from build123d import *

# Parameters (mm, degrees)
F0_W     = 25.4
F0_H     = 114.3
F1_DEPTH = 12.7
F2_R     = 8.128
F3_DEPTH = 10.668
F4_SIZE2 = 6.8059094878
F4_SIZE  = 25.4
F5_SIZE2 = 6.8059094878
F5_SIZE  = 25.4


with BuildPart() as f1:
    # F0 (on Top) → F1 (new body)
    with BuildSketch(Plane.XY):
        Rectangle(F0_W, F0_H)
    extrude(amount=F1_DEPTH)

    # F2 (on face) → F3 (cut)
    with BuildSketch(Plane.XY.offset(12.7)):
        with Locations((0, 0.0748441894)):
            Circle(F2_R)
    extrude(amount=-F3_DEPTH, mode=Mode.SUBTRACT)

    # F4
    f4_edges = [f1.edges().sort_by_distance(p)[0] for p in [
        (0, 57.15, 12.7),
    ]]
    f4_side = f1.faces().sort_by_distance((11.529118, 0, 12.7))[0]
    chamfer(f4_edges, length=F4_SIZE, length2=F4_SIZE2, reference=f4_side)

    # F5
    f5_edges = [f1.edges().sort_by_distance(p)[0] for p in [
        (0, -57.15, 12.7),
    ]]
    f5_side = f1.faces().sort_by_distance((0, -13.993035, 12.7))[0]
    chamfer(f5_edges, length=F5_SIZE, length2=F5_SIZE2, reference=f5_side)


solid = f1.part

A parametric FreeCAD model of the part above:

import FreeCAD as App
import Part
import Sketcher
from FreeCAD import Vector
Q = App.Units.Quantity


def edges_at(feature, points):
    """Names of the edges that pass closest to the given points."""
    edges = feature.Shape.Edges
    near = lambda p: min(range(len(edges)), key=lambda i: edges[i].distToShape(Part.Vertex(*p))[0])
    return sorted({f"Edge{near(p) + 1}" for p in points})

doc = App.newDocument("Part")
body = doc.addObject("PartDesign::Body", "Body")

# Sketch on XY plane
sketch1 = doc.addObject("Sketcher::SketchObject", "Sketch")
body.addObject(sketch1)
sketch1.AttachmentSupport = (doc.XY_Plane, [""])
sketch1.MapMode = "FlatFace"
sketch1.addGeometry([
    Part.LineSegment(Vector(-13, 57, 0), Vector(-13, -57, 0)),
    Part.LineSegment(Vector(-13, -57, 0), Vector(13, -57, 0)),
    Part.LineSegment(Vector(13, -57, 0), Vector(13, 57, 0)),
    Part.LineSegment(Vector(13, 57, 0), Vector(-13, 57, 0)),
], False)
sketch1.addConstraint([
    Sketcher.Constraint("Coincident", 0, 2, 1, 1),
    Sketcher.Constraint("Coincident", 1, 2, 2, 1),
    Sketcher.Constraint("Coincident", 2, 2, 3, 1),
    Sketcher.Constraint("Coincident", 3, 2, 0, 1),
    Sketcher.Constraint("Vertical", 0),
    Sketcher.Constraint("Horizontal", 1),
    Sketcher.Constraint("Vertical", 2),
    Sketcher.Constraint("Horizontal", 3),
    Sketcher.Constraint("Symmetric", 0, 2, 2, 2, -1, 1),
    Sketcher.Constraint("DistanceX", 1, 1, 1, 2, Q("1 in")),
    Sketcher.Constraint("DistanceY", 0, 2, 0, 1, Q("4.5 in")),
])
pad1 = doc.addObject("PartDesign::Pad", "Pad")
body.addObject(pad1)
pad1.Profile = sketch1
pad1.Length = Q("0.5 in")

# Sketch on XY plane
sketch2 = doc.addObject("Sketcher::SketchObject", "Sketch001")
body.addObject(sketch2)
sketch2.AttachmentSupport = (doc.XY_Plane, [""])
sketch2.MapMode = "FlatFace"
sketch2.AttachmentOffset = App.Placement(Vector(0, 0, 0.5 * 25.4), App.Rotation())
sketch2.addGeometry(Part.Circle(Vector(0, 0, 0), Vector(0, 0, 1), 8), False)
sketch2.addConstraint([
    Sketcher.Constraint("PointOnObject", 0, 3, -2),
    Sketcher.Constraint("Diameter", 0, Q("0.64 in")),
    Sketcher.Constraint("DistanceY", -1, 1, 0, 3, 0.074844),
])
pocket1 = doc.addObject("PartDesign::Pocket", "Pocket")
body.addObject(pocket1)
pocket1.Profile = sketch2
pocket1.Length = Q("0.42 in")
doc.recompute()

chamfer = doc.addObject("PartDesign::Chamfer", "Chamfer")
body.addObject(chamfer)
chamfer.Base = (pocket1, edges_at(pocket1, [(0, 57.15, 12.7)]))
chamfer.ChamferType = "Two distances"
chamfer.Size = Q("1 in")
chamfer.Size2 = 6.805909
chamfer.FlipDirection = True
doc.recompute()

chamfer2 = doc.addObject("PartDesign::Chamfer", "Chamfer001")
body.addObject(chamfer2)
chamfer2.Base = (chamfer, edges_at(chamfer, [(0, -57.15, 12.7)]))
chamfer2.ChamferType = "Two distances"
chamfer2.Size = Q("1 in")
chamfer2.Size2 = 6.805909

doc.recompute()
